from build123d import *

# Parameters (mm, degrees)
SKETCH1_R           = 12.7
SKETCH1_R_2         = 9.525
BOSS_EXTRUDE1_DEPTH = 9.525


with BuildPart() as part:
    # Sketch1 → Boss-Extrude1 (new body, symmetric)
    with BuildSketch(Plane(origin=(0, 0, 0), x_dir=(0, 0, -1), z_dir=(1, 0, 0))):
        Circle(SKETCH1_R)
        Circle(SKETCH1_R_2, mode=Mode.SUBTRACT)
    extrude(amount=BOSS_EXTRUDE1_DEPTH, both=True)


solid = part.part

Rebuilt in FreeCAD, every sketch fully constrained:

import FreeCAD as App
import Part
import Sketcher
Q = App.Units.Quantity

doc = App.newDocument("Part")
body = doc.addObject("PartDesign::Body", "Body")

# Sketch on YZ plane
sketch1 = body.newObject("Sketcher::SketchObject", "Sketch")
sketch1.AttachmentSupport = (doc.getObject("YZ_Plane"), [""])
sketch1.MapMode = "FlatFace"
sketch1.addGeometry(Part.Circle(App.Vector(0, 0, 0), App.Vector(0, 0, 1), 13), False)
sketch1.addGeometry(Part.Circle(App.Vector(0, 0, 0), App.Vector(0, 0, 1), 10), False)
sketch1.addConstraint(Sketcher.Constraint("Coincident", 0, 3, -1, 1))
sketch1.addConstraint(Sketcher.Constraint("Coincident", 1, 3, -1, 1))
sketch1.addConstraint(Sketcher.Constraint("Diameter", 0, Q("1 in")))
sketch1.addConstraint(Sketcher.Constraint("Diameter", 1, Q("0.75 in")))
pad1 = body.newObject("PartDesign::Pad", "Pad")
pad1.Profile = sketch1
pad1.Length = Q("0.75 in")
pad1.Midplane = True

doc.recompute()
